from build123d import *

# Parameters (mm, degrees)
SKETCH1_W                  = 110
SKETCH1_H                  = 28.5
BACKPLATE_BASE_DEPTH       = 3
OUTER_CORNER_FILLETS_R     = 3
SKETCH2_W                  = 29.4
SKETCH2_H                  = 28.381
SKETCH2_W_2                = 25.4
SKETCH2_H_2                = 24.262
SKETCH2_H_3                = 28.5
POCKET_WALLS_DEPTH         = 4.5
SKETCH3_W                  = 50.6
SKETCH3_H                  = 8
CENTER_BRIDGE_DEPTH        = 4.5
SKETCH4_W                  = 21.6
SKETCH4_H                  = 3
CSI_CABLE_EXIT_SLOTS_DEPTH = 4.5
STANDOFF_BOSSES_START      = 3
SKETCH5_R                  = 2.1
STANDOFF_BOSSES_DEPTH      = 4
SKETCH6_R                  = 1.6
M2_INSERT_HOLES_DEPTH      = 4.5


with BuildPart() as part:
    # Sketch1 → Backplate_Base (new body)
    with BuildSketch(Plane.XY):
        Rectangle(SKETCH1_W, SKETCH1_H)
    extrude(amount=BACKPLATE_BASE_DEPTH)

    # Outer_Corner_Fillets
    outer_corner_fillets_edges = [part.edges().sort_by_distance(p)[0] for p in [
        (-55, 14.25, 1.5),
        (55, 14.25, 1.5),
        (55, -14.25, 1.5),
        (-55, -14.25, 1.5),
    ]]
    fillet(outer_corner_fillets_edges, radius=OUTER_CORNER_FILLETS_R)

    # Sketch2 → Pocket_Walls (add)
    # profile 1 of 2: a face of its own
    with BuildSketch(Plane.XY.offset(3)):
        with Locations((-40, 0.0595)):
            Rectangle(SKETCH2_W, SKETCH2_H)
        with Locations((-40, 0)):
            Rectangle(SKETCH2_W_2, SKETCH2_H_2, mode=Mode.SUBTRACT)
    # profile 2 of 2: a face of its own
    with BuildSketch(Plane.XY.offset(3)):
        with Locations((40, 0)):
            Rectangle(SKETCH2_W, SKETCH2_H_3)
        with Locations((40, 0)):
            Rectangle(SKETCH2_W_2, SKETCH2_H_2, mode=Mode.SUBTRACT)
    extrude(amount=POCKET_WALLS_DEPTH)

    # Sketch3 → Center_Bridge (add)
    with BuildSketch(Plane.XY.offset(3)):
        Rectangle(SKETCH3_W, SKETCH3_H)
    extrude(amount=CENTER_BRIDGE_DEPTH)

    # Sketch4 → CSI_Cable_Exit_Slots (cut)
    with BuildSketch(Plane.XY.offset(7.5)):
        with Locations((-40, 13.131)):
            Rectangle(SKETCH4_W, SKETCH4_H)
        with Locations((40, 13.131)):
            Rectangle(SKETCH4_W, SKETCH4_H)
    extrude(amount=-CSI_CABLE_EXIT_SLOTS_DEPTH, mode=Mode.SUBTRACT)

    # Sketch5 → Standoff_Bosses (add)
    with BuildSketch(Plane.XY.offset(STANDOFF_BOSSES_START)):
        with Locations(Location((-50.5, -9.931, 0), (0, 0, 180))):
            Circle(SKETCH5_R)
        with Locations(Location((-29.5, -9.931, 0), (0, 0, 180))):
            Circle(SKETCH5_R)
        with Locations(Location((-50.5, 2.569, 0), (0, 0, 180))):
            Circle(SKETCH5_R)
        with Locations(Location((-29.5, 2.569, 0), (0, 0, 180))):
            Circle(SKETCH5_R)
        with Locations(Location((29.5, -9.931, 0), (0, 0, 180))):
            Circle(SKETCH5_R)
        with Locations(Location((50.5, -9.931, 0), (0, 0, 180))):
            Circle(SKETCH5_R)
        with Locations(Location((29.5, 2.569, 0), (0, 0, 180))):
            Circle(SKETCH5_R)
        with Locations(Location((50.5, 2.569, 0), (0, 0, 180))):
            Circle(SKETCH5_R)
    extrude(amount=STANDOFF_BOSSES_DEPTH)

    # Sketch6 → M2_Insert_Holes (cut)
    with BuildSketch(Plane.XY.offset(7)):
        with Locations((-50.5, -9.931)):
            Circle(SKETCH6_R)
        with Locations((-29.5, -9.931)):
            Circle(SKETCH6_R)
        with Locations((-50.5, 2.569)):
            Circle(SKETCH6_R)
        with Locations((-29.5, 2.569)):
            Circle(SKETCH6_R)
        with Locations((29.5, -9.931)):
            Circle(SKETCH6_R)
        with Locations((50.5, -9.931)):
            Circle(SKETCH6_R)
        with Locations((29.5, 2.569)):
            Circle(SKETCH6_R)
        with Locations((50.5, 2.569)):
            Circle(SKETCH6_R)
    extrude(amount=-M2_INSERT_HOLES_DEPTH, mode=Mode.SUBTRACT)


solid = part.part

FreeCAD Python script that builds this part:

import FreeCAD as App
import Part
import Sketcher


def edges_at(feature, points):
    """Names of the edges that pass closest to the given points."""
    edges = feature.Shape.Edges
    near = lambda p: min(range(len(edges)), key=lambda i: edges[i].distToShape(Part.Vertex(*p))[0])
    return sorted({f"Edge{near(p) + 1}" for p in points})


def add_polygon(sketch, points):
    """Adds a closed chain of lines whose ends are joined by coincident constraints."""
    first, n = sketch.GeometryCount, len(points)
    for a, b in zip(points, points[1:] + points[:1]):
        sketch.addGeometry(Part.LineSegment(App.Vector(*a, 0), App.Vector(*b, 0)), False)
    for i in range(n):
        sketch.addConstraint(Sketcher.Constraint("Coincident", first + i, 2, first + (i + 1) % n, 1))

doc = App.newDocument("Part")
body = doc.addObject("PartDesign::Body", "Body")

# Sketch on XY plane
sketch1 = body.newObject("Sketcher::SketchObject", "Sketch")
sketch1.AttachmentSupport = (doc.getObject("XY_Plane"), [""])
sketch1.MapMode = "FlatFace"
add_polygon(sketch1, [(-55, 14.25), (-55, -14.25), (55, -14.25), (55, 14.25)])  # lines 0-3
sketch1.addConstraint(Sketcher.Constraint("Vertical", 0))
sketch1.addConstraint(Sketcher.Constraint("Horizontal", 1))
sketch1.addConstraint(Sketcher.Constraint("Vertical", 2))
sketch1.addConstraint(Sketcher.Constraint("Horizontal", 3))
sketch1.addConstraint(Sketcher.Constraint("Symmetric", 0, 2, 2, 2, -1, 1))
sketch1.addConstraint(Sketcher.Constraint("DistanceX", 1, 1, 1, 2, 110.0))
sketch1.addConstraint(Sketcher.Constraint("DistanceY", 0, 2, 0, 1, 28.5))
pad1 = body.newObject("PartDesign::Pad", "Pad")
pad1.Profile = sketch1
pad1.Length = 3
doc.recompute()

fillet = body.newObject("PartDesign::Fillet", "Fillet")
fillet.Base = (pad1, edges_at(pad1, [
    (-55, 14.25, 1.5),
    (55, 14.25, 1.5),
    (55, -14.25, 1.5),
    (-55, -14.25, 1.5),
]))
fillet.Radius = 3

# Sketch on XY plane
sketch2 = body.newObject("Sketcher::SketchObject", "Sketch001")
sketch2.AttachmentSupport = (doc.getObject("XY_Plane"), [""])
sketch2.MapMode = "FlatFace"
sketch2.AttachmentOffset = App.Placement(App.Vector(0, 0, 3), App.Rotation())
add_polygon(sketch2, [(-54.7, 14.25), (-54.7, -14.131), (-25.3, -14.131), (-25.3, 14.25)])  # lines 0-3
add_polygon(sketch2, [(-27.3, -12.131), (-52.7, -12.131), (-52.7, 12.131), (-27.3, 12.131)])  # lines 4-7
add_polygon(sketch2, [(25.3, 14.25), (25.3, -14.25), (54.7, -14.25), (54.7, 14.25)])  # lines 8-11
add_polygon(sketch2, [(52.7, -12.131), (27.3, -12.131), (27.3, 12.131), (52.7, 12.131)])  # lines 12-15
sketch2.addConstraint(Sketcher.Constraint("Vertical", 0))
sketch2.addConstraint(Sketcher.Constraint("Horizontal", 1))
sketch2.addConstraint(Sketcher.Constraint("Vertical", 2))
sketch2.addConstraint(Sketcher.Constraint("Horizontal", 3))
sketch2.addConstraint(Sketcher.Constraint("Horizontal", 4))
sketch2.addConstraint(Sketcher.Constraint("Vertical", 5))
sketch2.addConstraint(Sketcher.Constraint("Horizontal", 6))
sketch2.addConstraint(Sketcher.Constraint("Vertical", 7))
sketch2.addConstraint(Sketcher.Constraint("Vertical", 8))
sketch2.addConstraint(Sketcher.Constraint("Horizontal", 9))
sketch2.addConstraint(Sketcher.Constraint("Vertical", 10))
sketch2.addConstraint(Sketcher.Constraint("Horizontal", 11))
sketch2.addConstraint(Sketcher.Constraint("Horizontal", 12))
sketch2.addConstraint(Sketcher.Constraint("Vertical", 13))
sketch2.addConstraint(Sketcher.Constraint("Horizontal", 14))
sketch2.addConstraint(Sketcher.Constraint("Vertical", 15))
sketch2.addConstraint(Sketcher.Constraint("Symmetric", 2, 2, 8, 2, -1, 1))
sketch2.addConstraint(Sketcher.Constraint("Symmetric", 6, 2, 12, 2, -1, 1))
sketch2.addConstraint(Sketcher.Constraint("Symmetric", 4, 2, 14, 2, -1, 1))
sketch2.addConstraint(Sketcher.Constraint("Symmetric", 3, 2, 10, 2, -2))
sketch2.addConstraint(Sketcher.Constraint("Horizontal", 7, 2, 12, 2))
sketch2.addConstraint(Sketcher.Constraint("DistanceX", 1, 1, 1, 2, 29.4))
sketch2.addConstraint(Sketcher.Constraint("DistanceX", 4, 2, 4, 1, 25.4))
sketch2.addConstraint(Sketcher.Constraint("DistanceY", 8, 2, 8, 1, 28.5))
sketch2.addConstraint(Sketcher.Constraint("DistanceX", 0, 2, 4, 2, 2.0))
sketch2.addConstraint(Sketcher.Constraint("DistanceY", 0, 2, 4, 2, 2.0))
sketch2.addConstraint(Sketcher.Constraint("DistanceX", 4, 2, 8, 2, 78.0))
sketch2.addConstraint(Sketcher.Constraint("DistanceY", 0, 2, 0, 1, 28.381))
pad2 = body.newObject("PartDesign::Pad", "Pad001")
pad2.Profile = sketch2
pad2.Length = 4.5

# Sketch on XY plane
sketch3 = body.newObject("Sketcher::SketchObject", "Sketch002")
sketch3.AttachmentSupport = (doc.getObject("XY_Plane"), [""])
sketch3.MapMode = "FlatFace"
sketch3.AttachmentOffset = App.Placement(App.Vector(0, 0, 3), App.Rotation())
add_polygon(sketch3, [(-25.3, 4), (-25.3, -4), (25.3, -4), (25.3, 4)])  # lines 0-3
sketch3.addConstraint(Sketcher.Constraint("Vertical", 0))
sketch3.addConstraint(Sketcher.Constraint("Horizontal", 1))
sketch3.addConstraint(Sketcher.Constraint("Vertical", 2))
sketch3.addConstraint(Sketcher.Constraint("Horizontal", 3))
sketch3.addConstraint(Sketcher.Constraint("Symmetric", 0, 2, 2, 2, -1, 1))
sketch3.addConstraint(Sketcher.Constraint("DistanceY", 0, 2, 0, 1, 8.0))
sketch3.addConstraint(Sketcher.Constraint("DistanceX", 1, 1, 1, 2, 50.6))
pad3 = body.newObject("PartDesign::Pad", "Pad002")
pad3.Profile = sketch3
pad3.Length = 4.5

# Sketch on XY plane
sketch4 = body.newObject("Sketcher::SketchObject", "Sketch003")
sketch4.AttachmentSupport = (doc.getObject("XY_Plane"), [""])
sketch4.MapMode = "FlatFace"
sketch4.AttachmentOffset = App.Placement(App.Vector(0, 0, 7.5), App.Rotation())
add_polygon(sketch4, [(-50.8, 14.631), (-50.8, 11.631), (-29.2, 11.631), (-29.2, 14.631)])  # lines 0-3
add_polygon(sketch4, [(29.2, 14.631), (29.2, 11.631), (50.8, 11.631), (50.8, 14.631)])  # lines 4-7
sketch4.addConstraint(Sketcher.Constraint("Vertical", 0))
sketch4.addConstraint(Sketcher.Constraint("Horizontal", 1))
sketch4.addConstraint(Sketcher.Constraint("Vertical", 2))
sketch4.addConstraint(Sketcher.Constraint("Horizontal", 3))
sketch4.addConstraint(Sketcher.Constraint("Vertical", 4))
sketch4.addConstraint(Sketcher.Constraint("Horizontal", 5))
sketch4.addConstraint(Sketcher.Constraint("Vertical", 6))
sketch4.addConstraint(Sketcher.Constraint("Horizontal", 7))
sketch4.addConstraint(Sketcher.Constraint("Symmetric", 1, 2, 4, 2, -2))
sketch4.addConstraint(Sketcher.Constraint("Symmetric", 3, 2, 6, 2, -2))
sketch4.addConstraint(Sketcher.Constraint("DistanceY", 0, 2, 0, 1, 3.0))
sketch4.addConstraint(Sketcher.Constraint("DistanceX", 1, 1, 1, 2, 21.6))
sketch4.addConstraint(Sketcher.Constraint("DistanceX", 0, 2, 4, 2, 80.0))
sketch4.addConstraint(Sketcher.Constraint("DistanceY", -1, 1, 0, 2, 11.631))
pocket1 = body.newObject("PartDesign::Pocket", "Pocket")
pocket1.Profile = sketch4
pocket1.Length = 4.5

# Sketch on XY plane
sketch5 = body.newObject("Sketcher::SketchObject", "Sketch004")
sketch5.AttachmentSupport = (doc.getObject("XY_Plane"), [""])
sketch5.MapMode = "FlatFace"
sketch5.AttachmentOffset = App.Placement(App.Vector(0, 0, 3), App.Rotation())
sketch5.addGeometry(Part.Circle(App.Vector(-50.5, -9.931, 0), App.Vector(0, 0, 1), 2.1), False)
sketch5.addGeometry(Part.Circle(App.Vector(-29.5, -9.931, 0), App.Vector(0, 0, 1), 2.1), False)
sketch5.addGeometry(Part.Circle(App.Vector(-50.5, 2.569, 0), App.Vector(0, 0, 1), 2.1), False)
sketch5.addGeometry(Part.Circle(App.Vector(-29.5, 2.569, 0), App.Vector(0, 0, 1), 2.1), False)
sketch5.addGeometry(Part.Circle(App.Vector(29.5, -9.931, 0), App.Vector(0, 0, 1), 2.1), False)
sketch5.addGeometry(Part.Circle(App.Vector(50.5, -9.931, 0), App.Vector(0, 0, 1), 2.1), False)
sketch5.addGeometry(Part.Circle(App.Vector(29.5, 2.569, 0), App.Vector(0, 0, 1), 2.1), False)
sketch5.addGeometry(Part.Circle(App.Vector(50.5, 2.569, 0), App.Vector(0, 0, 1), 2.1), False)
sketch5.addConstraint(Sketcher.Constraint("Equal", 0, 1))
sketch5.addConstraint(Sketcher.Constraint("Equal", 1, 2))
sketch5.addConstraint(Sketcher.Constraint("Equal", 2, 3))
sketch5.addConstraint(Sketcher.Constraint("Equal", 3, 4))
sketch5.addConstraint(Sketcher.Constraint("Equal", 4, 5))
sketch5.addConstraint(Sketcher.Constraint("Equal", 5, 6))
sketch5.addConstraint(Sketcher.Constraint("Equal", 6, 7))
sketch5.addConstraint(Sketcher.Constraint("Symmetric", 1, 3, 4, 3, -2))
sketch5.addConstraint(Sketcher.Constraint("Symmetric", 0, 3, 5, 3, -2))
sketch5.addConstraint(Sketcher.Constraint("Symmetric", 3, 3, 6, 3, -2))
sketch5.addConstraint(Sketcher.Constraint("Symmetric", 2, 3, 7, 3, -2))
sketch5.addConstraint(Sketcher.Constraint("Horizontal", 0, 3, 1, 3))
sketch5.addConstraint(Sketcher.Constraint("Horizontal", 2, 3, 3, 3))
sketch5.addConstraint(Sketcher.Constraint("Vertical", 0, 3, 2, 3))
sketch5.addConstraint(Sketcher.Constraint("Vertical", 1, 3, 3, 3))
sketch5.addConstraint(Sketcher.Constraint("Diameter", 0, 4.2))
sketch5.addConstraint(Sketcher.Constraint("DistanceX", 0, 3, 1, 3, 21.0))
sketch5.addConstraint(Sketcher.Constraint("DistanceX", 1, 3, 4, 3, 59.0))
sketch5.addConstraint(Sketcher.Constraint("DistanceY", 0, 3, 2, 3, 12.5))
sketch5.addConstraint(Sketcher.Constraint("DistanceY", 0, 3, -1, 1, 9.931))
pad4 = body.newObject("PartDesign::Pad", "Pad003")
pad4.Profile = sketch5
pad4.Length = 4

# Sketch on XY plane
sketch6 = body.newObject("Sketcher::SketchObject", "Sketch005")
sketch6.AttachmentSupport = (doc.getObject("XY_Plane"), [""])
sketch6.MapMode = "FlatFace"
sketch6.AttachmentOffset = App.Placement(App.Vector(0, 0, 7), App.Rotation())
sketch6.addGeometry(Part.Circle(App.Vector(-50.5, -9.931, 0), App.Vector(0, 0, 1), 1.6), False)
sketch6.addGeometry(Part.Circle(App.Vector(-29.5, -9.931, 0), App.Vector(0, 0, 1), 1.6), False)
sketch6.addGeometry(Part.Circle(App.Vector(-50.5, 2.569, 0), App.Vector(0, 0, 1), 1.6), False)
sketch6.addGeometry(Part.Circle(App.Vector(-29.5, 2.569, 0), App.Vector(0, 0, 1), 1.6), False)
sketch6.addGeometry(Part.Circle(App.Vector(29.5, -9.931, 0), App.Vector(0, 0, 1), 1.6), False)
sketch6.addGeometry(Part.Circle(App.Vector(50.5, -9.931, 0), App.Vector(0, 0, 1), 1.6), False)
sketch6.addGeometry(Part.Circle(App.Vector(29.5, 2.569, 0), App.Vector(0, 0, 1), 1.6), False)
sketch6.addGeometry(Part.Circle(App.Vector(50.5, 2.569, 0), App.Vector(0, 0, 1), 1.6), False)
sketch6.addConstraint(Sketcher.Constraint("Equal", 0, 1))
sketch6.addConstraint(Sketcher.Constraint("Equal", 1, 2))
sketch6.addConstraint(Sketcher.Constraint("Equal", 2, 3))
sketch6.addConstraint(Sketcher.Constraint("Equal", 3, 4))
sketch6.addConstraint(Sketcher.Constraint("Equal", 4, 5))
sketch6.addConstraint(Sketcher.Constraint("Equal", 5, 6))
sketch6.addConstraint(Sketcher.Constraint("Equal", 6, 7))
sketch6.addConstraint(Sketcher.Constraint("Symmetric", 1, 3, 4, 3, -2))
sketch6.addConstraint(Sketcher.Constraint("Symmetric", 0, 3, 5, 3, -2))
sketch6.addConstraint(Sketcher.Constraint("Symmetric", 3, 3, 6, 3, -2))
sketch6.addConstraint(Sketcher.Constraint("Symmetric", 2, 3, 7, 3, -2))
sketch6.addConstraint(Sketcher.Constraint("Horizontal", 0, 3, 1, 3))
sketch6.addConstraint(Sketcher.Constraint("Horizontal", 2, 3, 3, 3))
sketch6.addConstraint(Sketcher.Constraint("Vertical", 0, 3, 2, 3))
sketch6.addConstraint(Sketcher.Constraint("Vertical", 1, 3, 3, 3))
sketch6.addConstraint(Sketcher.Constraint("Diameter", 0, 3.2))
sketch6.addConstraint(Sketcher.Constraint("DistanceX", 0, 3, 1, 3, 21.0))
sketch6.addConstraint(Sketcher.Constraint("DistanceX", 1, 3, 4, 3, 59.0))
sketch6.addConstraint(Sketcher.Constraint("DistanceY", 0, 3, 2, 3, 12.5))
sketch6.addConstraint(Sketcher.Constraint("DistanceY", 0, 3, -1, 1, 9.931))
pocket2 = body.newObject("PartDesign::Pocket", "Pocket001")
pocket2.Profile = sketch6
pocket2.Length = 4.5

doc.recompute()
